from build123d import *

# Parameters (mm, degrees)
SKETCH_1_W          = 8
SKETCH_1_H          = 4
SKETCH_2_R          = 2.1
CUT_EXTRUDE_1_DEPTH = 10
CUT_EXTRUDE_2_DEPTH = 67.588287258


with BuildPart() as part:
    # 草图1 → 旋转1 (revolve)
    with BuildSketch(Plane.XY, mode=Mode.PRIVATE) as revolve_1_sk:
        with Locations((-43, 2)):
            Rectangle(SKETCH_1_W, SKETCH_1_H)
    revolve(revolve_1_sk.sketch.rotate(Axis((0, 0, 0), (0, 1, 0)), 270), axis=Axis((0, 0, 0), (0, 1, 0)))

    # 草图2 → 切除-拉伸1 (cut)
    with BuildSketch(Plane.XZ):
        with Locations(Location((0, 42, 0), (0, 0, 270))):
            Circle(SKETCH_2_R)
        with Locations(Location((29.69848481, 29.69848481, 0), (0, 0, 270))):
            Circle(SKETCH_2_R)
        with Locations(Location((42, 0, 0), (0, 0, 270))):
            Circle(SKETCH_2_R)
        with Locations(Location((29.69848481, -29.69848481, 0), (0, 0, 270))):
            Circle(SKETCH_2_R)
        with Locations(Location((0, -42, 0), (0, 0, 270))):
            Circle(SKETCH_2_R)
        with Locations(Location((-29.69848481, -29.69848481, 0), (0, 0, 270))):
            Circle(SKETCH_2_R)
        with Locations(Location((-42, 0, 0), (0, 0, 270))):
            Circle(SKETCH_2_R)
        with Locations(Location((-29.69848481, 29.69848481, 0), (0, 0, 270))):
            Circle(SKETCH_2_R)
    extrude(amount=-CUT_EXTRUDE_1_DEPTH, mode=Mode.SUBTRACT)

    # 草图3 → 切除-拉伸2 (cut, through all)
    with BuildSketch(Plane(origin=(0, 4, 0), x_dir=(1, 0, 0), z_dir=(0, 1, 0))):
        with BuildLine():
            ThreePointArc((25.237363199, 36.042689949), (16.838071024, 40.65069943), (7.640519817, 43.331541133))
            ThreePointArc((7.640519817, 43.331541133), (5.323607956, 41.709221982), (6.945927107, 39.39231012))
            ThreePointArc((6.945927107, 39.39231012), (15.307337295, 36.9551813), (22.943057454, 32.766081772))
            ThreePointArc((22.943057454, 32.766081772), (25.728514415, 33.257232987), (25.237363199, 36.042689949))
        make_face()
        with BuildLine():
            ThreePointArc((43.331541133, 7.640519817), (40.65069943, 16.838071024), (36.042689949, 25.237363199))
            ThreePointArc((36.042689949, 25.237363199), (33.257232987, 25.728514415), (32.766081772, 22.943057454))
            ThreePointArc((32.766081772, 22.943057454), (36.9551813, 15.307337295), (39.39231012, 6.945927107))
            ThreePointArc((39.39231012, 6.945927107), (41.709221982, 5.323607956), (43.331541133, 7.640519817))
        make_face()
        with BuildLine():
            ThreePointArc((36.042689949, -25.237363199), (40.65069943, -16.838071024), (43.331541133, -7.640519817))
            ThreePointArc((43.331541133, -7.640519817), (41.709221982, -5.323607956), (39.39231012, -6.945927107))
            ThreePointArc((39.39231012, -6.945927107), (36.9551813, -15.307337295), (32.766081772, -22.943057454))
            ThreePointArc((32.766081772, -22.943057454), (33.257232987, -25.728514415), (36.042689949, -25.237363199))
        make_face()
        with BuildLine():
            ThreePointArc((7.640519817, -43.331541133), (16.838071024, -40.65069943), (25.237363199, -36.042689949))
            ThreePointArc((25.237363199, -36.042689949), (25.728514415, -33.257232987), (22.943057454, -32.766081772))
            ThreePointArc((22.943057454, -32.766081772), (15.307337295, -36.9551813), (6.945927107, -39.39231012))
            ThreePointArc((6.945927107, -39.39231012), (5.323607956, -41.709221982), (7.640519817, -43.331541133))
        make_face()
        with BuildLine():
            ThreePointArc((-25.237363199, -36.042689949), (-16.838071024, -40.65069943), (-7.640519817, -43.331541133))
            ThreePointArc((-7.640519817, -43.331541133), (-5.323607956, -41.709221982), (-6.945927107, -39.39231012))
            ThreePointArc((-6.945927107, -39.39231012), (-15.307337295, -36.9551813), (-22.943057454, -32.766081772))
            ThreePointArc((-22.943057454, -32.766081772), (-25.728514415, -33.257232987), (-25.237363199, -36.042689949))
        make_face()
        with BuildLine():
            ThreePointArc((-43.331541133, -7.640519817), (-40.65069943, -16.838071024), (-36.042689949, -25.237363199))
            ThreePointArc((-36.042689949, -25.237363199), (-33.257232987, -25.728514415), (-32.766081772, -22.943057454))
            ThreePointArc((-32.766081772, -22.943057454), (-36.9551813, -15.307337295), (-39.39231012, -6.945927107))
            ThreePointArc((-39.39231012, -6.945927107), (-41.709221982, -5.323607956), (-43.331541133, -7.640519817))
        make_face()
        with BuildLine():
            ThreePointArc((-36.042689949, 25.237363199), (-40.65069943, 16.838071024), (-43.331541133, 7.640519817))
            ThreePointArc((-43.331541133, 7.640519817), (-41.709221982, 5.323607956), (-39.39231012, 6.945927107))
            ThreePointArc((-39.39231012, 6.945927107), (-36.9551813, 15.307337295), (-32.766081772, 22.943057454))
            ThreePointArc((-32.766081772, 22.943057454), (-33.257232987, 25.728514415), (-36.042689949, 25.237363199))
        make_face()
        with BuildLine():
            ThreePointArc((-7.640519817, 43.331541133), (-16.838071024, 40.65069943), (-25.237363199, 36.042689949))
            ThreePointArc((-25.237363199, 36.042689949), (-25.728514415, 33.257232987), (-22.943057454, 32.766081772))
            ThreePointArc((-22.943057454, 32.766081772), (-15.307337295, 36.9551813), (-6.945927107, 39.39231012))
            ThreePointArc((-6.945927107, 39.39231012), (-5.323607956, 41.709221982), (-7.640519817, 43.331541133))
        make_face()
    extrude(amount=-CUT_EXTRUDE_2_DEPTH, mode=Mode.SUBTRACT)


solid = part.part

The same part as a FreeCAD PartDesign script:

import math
import FreeCAD as App
import Part
import Sketcher


def add_polygon(sketch, points):
    """Adds a closed chain of lines whose ends are joined by coincident constraints."""
    first, n = sketch.GeometryCount, len(points)
    for a, b in zip(points, points[1:] + points[:1]):
        sketch.addGeometry(Part.LineSegment(App.Vector(*a, 0), App.Vector(*b, 0)), False)
    for i in range(n):
        sketch.addConstraint(Sketcher.Constraint("Coincident", first + i, 2, first + (i + 1) % n, 1))

doc = App.newDocument("Part")
body = doc.addObject("PartDesign::Body", "Body")

# Sketch on XY plane
sketch1 = body.newObject("Sketcher::SketchObject", "Sketch")
sketch1.AttachmentSupport = (doc.getObject("XY_Plane"), [""])
sketch1.MapMode = "FlatFace"
add_polygon(sketch1, [(-47, 4), (-47, 0), (-39, 0), (-39, 4)])  # lines 0-3
sketch1.addConstraint([
    Sketcher.Constraint("Vertical", 0),
    Sketcher.Constraint("Horizontal", 1),
    Sketcher.Constraint("Vertical", 2),
    Sketcher.Constraint("Horizontal", 3),
    Sketcher.Constraint("PointOnObject", 0, 2, -1),
    Sketcher.Constraint("DistanceX", 1, 1, 1, 2, 8.0),
    Sketcher.Constraint("DistanceY", 0, 2, 0, 1, 4.0),
    Sketcher.Constraint("DistanceX", 0, 2, -1, 1, 47.0),
])
revolution = body.newObject("PartDesign::Revolution", "Revolution")
revolution.Profile = sketch1
revolution.ReferenceAxis = (sketch1, ["V_Axis"])
revolution.Angle = 360

# Sketch on XZ plane
sketch2 = body.newObject("Sketcher::SketchObject", "Sketch001")
sketch2.AttachmentSupport = (doc.getObject("XZ_Plane"), [""])
sketch2.MapMode = "FlatFace"
sketch2.addGeometry([
    Part.Circle(App.Vector(0, 42, 0), App.Vector(0, 0, 1), 2.1),  # 0
    Part.Circle(App.Vector(29.698485, 29.698485, 0), App.Vector(0, 0, 1), 2.1),  # 1
    Part.Circle(App.Vector(42, 0, 0), App.Vector(0, 0, 1), 2.1),  # 2
    Part.Circle(App.Vector(29.698485, -29.698485, 0), App.Vector(0, 0, 1), 2.1),  # 3
    Part.Circle(App.Vector(0, -42, 0), App.Vector(0, 0, 1), 2.1),  # 4
    Part.Circle(App.Vector(-29.698485, -29.698485, 0), App.Vector(0, 0, 1), 2.1),  # 5
    Part.Circle(App.Vector(-42, 0, 0), App.Vector(0, 0, 1), 2.1),  # 6
    Part.Circle(App.Vector(-29.698485, 29.698485, 0), App.Vector(0, 0, 1), 2.1),  # 7
], False)
sketch2.addConstraint([
    Sketcher.Constraint("Equal", 0, 1),
    Sketcher.Constraint("Equal", 1, 2),
    Sketcher.Constraint("Equal", 2, 3),
    Sketcher.Constraint("Equal", 3, 4),
    Sketcher.Constraint("Equal", 4, 5),
    Sketcher.Constraint("Equal", 5, 6),
    Sketcher.Constraint("Equal", 6, 7),
    Sketcher.Constraint("Symmetric", 0, 3, 4, 3, -1, 1),
    Sketcher.Constraint("Symmetric", 1, 3, 5, 3, -1, 1),
    Sketcher.Constraint("Symmetric", 2, 3, 6, 3, -1, 1),
    Sketcher.Constraint("Symmetric", 3, 3, 7, 3, -1, 1),
    Sketcher.Constraint("Symmetric", 3, 3, 5, 3, -2),
    Sketcher.Constraint("PointOnObject", 0, 3, -2),
    Sketcher.Constraint("PointOnObject", 2, 3, -1),
    Sketcher.Constraint("Diameter", 0, 4.2),
    Sketcher.Constraint("DistanceY", -1, 1, 0, 3, 42.0),
    Sketcher.Constraint("DistanceX", -1, 1, 2, 3, 42.0),
    Sketcher.Constraint("DistanceY", 3, 3, 1, 3, 59.39697),
    Sketcher.Constraint("DistanceX", 5, 3, 3, 3, 59.39697),
])
pocket1 = body.newObject("PartDesign::Pocket", "Pocket")
pocket1.Profile = sketch2
pocket1.Length = 10

# Sketch on XZ plane
sketch3 = body.newObject("Sketcher::SketchObject", "Sketch002")
sketch3.AttachmentSupport = (doc.getObject("XZ_Plane"), [""])
sketch3.MapMode = "FlatFace"
sketch3.AttachmentOffset = App.Placement(App.Vector(0, 0, -4), App.Rotation())
sketch3.addGeometry([
    Part.ArcOfCircle(Part.Circle(App.Vector(0, 0, 0), App.Vector(0, 0, 1), 44), math.radians(-80), math.radians(-55)),  # 0
    Part.ArcOfCircle(Part.Circle(App.Vector(7.293223, -41.361926, 0), App.Vector(0, 0, 1), 2), math.radians(100), math.radians(280)),  # 1
    Part.ArcOfCircle(Part.Circle(App.Vector(0, 0, 0), App.Vector(0, 0, 1), 40), math.radians(-80), math.radians(-55)),  # 2
    Part.ArcOfCircle(Part.Circle(App.Vector(24.09021, -34.404386, 0), App.Vector(0, 0, 1), 2), math.radians(-55), math.radians(125)),  # 3
    Part.ArcOfCircle(Part.Circle(App.Vector(0, 0, 0), App.Vector(0, 0, 1), 44), math.radians(-35), math.radians(-10)),  # 4
    Part.ArcOfCircle(Part.Circle(App.Vector(34.404386, -24.09021, 0), App.Vector(0, 0, 1), 2), math.radians(145), math.radians(325)),  # 5
    Part.ArcOfCircle(Part.Circle(App.Vector(0, 0, 0), App.Vector(0, 0, 1), 40), math.radians(-35), math.radians(-10)),  # 6
    Part.ArcOfCircle(Part.Circle(App.Vector(41.361926, -7.293223, 0), App.Vector(0, 0, 1), 2), math.radians(-10), math.radians(170)),  # 7
    Part.ArcOfCircle(Part.Circle(App.Vector(0, 0, 0), App.Vector(0, 0, 1), 44), math.radians(10), math.radians(35)),  # 8
    Part.ArcOfCircle(Part.Circle(App.Vector(41.361926, 7.293223, 0), App.Vector(0, 0, 1), 2), math.radians(-170), math.radians(10)),  # 9
    Part.ArcOfCircle(Part.Circle(App.Vector(0, 0, 0), App.Vector(0, 0, 1), 40), math.radians(10), math.radians(35)),  # 10
    Part.ArcOfCircle(Part.Circle(App.Vector(34.404386, 24.09021, 0), App.Vector(0, 0, 1), 2), math.radians(35), math.radians(215)),  # 11
    Part.ArcOfCircle(Part.Circle(App.Vector(0, 0, 0), App.Vector(0, 0, 1), 44), math.radians(55), math.radians(80)),  # 12
    Part.ArcOfCircle(Part.Circle(App.Vector(24.09021, 34.404386, 0), App.Vector(0, 0, 1), 2), math.radians(-125), math.radians(55)),  # 13
    Part.ArcOfCircle(Part.Circle(App.Vector(0, 0, 0), App.Vector(0, 0, 1), 40), math.radians(55), math.radians(80)),  # 14
    Part.ArcOfCircle(Part.Circle(App.Vector(7.293223, 41.361926, 0), App.Vector(0, 0, 1), 2), math.radians(80), math.radians(260)),  # 15
    Part.ArcOfCircle(Part.Circle(App.Vector(0, 0, 0), App.Vector(0, 0, 1), 44), math.radians(100), math.radians(125)),  # 16
    Part.ArcOfCircle(Part.Circle(App.Vector(-7.293223, 41.361926, 0), App.Vector(0, 0, 1), 2), math.radians(-80), math.radians(100)),  # 17
    Part.ArcOfCircle(Part.Circle(App.Vector(0, 0, 0), App.Vector(0, 0, 1), 40), math.radians(100), math.radians(125)),  # 18
    Part.ArcOfCircle(Part.Circle(App.Vector(-24.09021, 34.404386, 0), App.Vector(0, 0, 1), 2), math.radians(125), math.radians(305)),  # 19
    Part.ArcOfCircle(Part.Circle(App.Vector(0, 0, 0), App.Vector(0, 0, 1), 44), math.radians(145), math.radians(170)),  # 20
    Part.ArcOfCircle(Part.Circle(App.Vector(-34.404386, 24.09021, 0), App.Vector(0, 0, 1), 2), math.radians(-35), math.radians(145)),  # 21
    Part.ArcOfCircle(Part.Circle(App.Vector(0, 0, 0), App.Vector(0, 0, 1), 40), math.radians(145), math.radians(170)),  # 22
    Part.ArcOfCircle(Part.Circle(App.Vector(-41.361926, 7.293223, 0), App.Vector(0, 0, 1), 2), math.radians(170), math.radians(350)),  # 23
    Part.ArcOfCircle(Part.Circle(App.Vector(0, 0, 0), App.Vector(0, 0, 1), 44), math.radians(-170), math.radians(-145)),  # 24
    Part.ArcOfCircle(Part.Circle(App.Vector(-41.361926, -7.293223, 0), App.Vector(0, 0, 1), 2), math.radians(10), math.radians(190)),  # 25
    Part.ArcOfCircle(Part.Circle(App.Vector(0, 0, 0), App.Vector(0, 0, 1), 40), math.radians(-170), math.radians(-145)),  # 26
    Part.ArcOfCircle(Part.Circle(App.Vector(-34.404386, -24.09021, 0), App.Vector(0, 0, 1), 2), math.radians(-145), math.radians(35)),  # 27
    Part.ArcOfCircle(Part.Circle(App.Vector(0, 0, 0), App.Vector(0, 0, 1), 44), math.radians(-125), math.radians(-100)),  # 28
    Part.ArcOfCircle(Part.Circle(App.Vector(-24.09021, -34.404386, 0), App.Vector(0, 0, 1), 2), math.radians(55), math.radians(235)),  # 29
    Part.ArcOfCircle(Part.Circle(App.Vector(0, 0, 0), App.Vector(0, 0, 1), 40), math.radians(-125), math.radians(-100)),  # 30
    Part.ArcOfCircle(Part.Circle(App.Vector(-7.293223, -41.361926, 0), App.Vector(0, 0, 1), 2), math.radians(-100), math.radians(80)),  # 31
], False)
sketch3.addConstraint([
    Sketcher.Constraint("Tangent", 0, 1, 1, 2),
    Sketcher.Constraint("Tangent", 1, 1, 2, 1),
    Sketcher.Constraint("Tangent", 2, 2, 3, 2),
    Sketcher.Constraint("Tangent", 3, 1, 0, 2),
    Sketcher.Constraint("Tangent", 4, 1, 5, 2),
    Sketcher.Constraint("Tangent", 5, 1, 6, 1),
    Sketcher.Constraint("Tangent", 6, 2, 7, 2),
    Sketcher.Constraint("Tangent", 7, 1, 4, 2),
    Sketcher.Constraint("Tangent", 8, 1, 9, 2),
    Sketcher.Constraint("Tangent", 9, 1, 10, 1),
    Sketcher.Constraint("Tangent", 10, 2, 11, 2),
    Sketcher.Constraint("Tangent", 11, 1, 8, 2),
    Sketcher.Constraint("Tangent", 12, 1, 13, 2),
    Sketcher.Constraint("Tangent", 13, 1, 14, 1),
    Sketcher.Constraint("Tangent", 14, 2, 15, 2),
    Sketcher.Constraint("Tangent", 15, 1, 12, 2),
    Sketcher.Constraint("Tangent", 16, 1, 17, 2),
    Sketcher.Constraint("Tangent", 17, 1, 18, 1),
    Sketcher.Constraint("Tangent", 18, 2, 19, 2),
    Sketcher.Constraint("Tangent", 19, 1, 16, 2),
    Sketcher.Constraint("Tangent", 20, 1, 21, 2),
    Sketcher.Constraint("Tangent", 21, 1, 22, 1),
    Sketcher.Constraint("Tangent", 22, 2, 23, 2),
    Sketcher.Constraint("Tangent", 23, 1, 20, 2),
    Sketcher.Constraint("Tangent", 24, 1, 25, 2),
    Sketcher.Constraint("Tangent", 25, 1, 26, 1),
    Sketcher.Constraint("Tangent", 26, 2, 27, 2),
    Sketcher.Constraint("Tangent", 27, 1, 24, 2),
    Sketcher.Constraint("Tangent", 28, 1, 29, 2),
    Sketcher.Constraint("Tangent", 29, 1, 30, 1),
    Sketcher.Constraint("Tangent", 30, 2, 31, 2),
    Sketcher.Constraint("Tangent", 31, 1, 28, 2),
    Sketcher.Constraint("Coincident", 0, 3, -1, 1),
    Sketcher.Constraint("Coincident", 2, 3, -1, 1),
    Sketcher.Constraint("Coincident", 4, 3, -1, 1),
    Sketcher.Constraint("Coincident", 6, 3, -1, 1),
    Sketcher.Constraint("Coincident", 8, 3, -1, 1),
    Sketcher.Constraint("Coincident", 10, 3, -1, 1),
    Sketcher.Constraint("Coincident", 12, 3, -1, 1),
    Sketcher.Constraint("Coincident", 14, 3, -1, 1),
    Sketcher.Constraint("Coincident", 16, 3, -1, 1),
    Sketcher.Constraint("Coincident", 18, 3, -1, 1),
    Sketcher.Constraint("Coincident", 20, 3, -1, 1),
    Sketcher.Constraint("Coincident", 22, 3, -1, 1),
    Sketcher.Constraint("Coincident", 24, 3, -1, 1),
    Sketcher.Constraint("Coincident", 26, 3, -1, 1),
    Sketcher.Constraint("Coincident", 28, 3, -1, 1),
    Sketcher.Constraint("Coincident", 30, 3, -1, 1),
    Sketcher.Constraint("Equal", 0, 4),
    Sketcher.Constraint("Equal", 3, 5),
    Sketcher.Constraint("Equal", 4, 8),
    Sketcher.Constraint("Equal", 7, 9),
    Sketcher.Constraint("Equal", 8, 12),
    Sketcher.Constraint("Equal", 11, 13),
    Sketcher.Constraint("Equal", 12, 16),
    Sketcher.Constraint("Equal", 15, 17),
    Sketcher.Constraint("Equal", 16, 20),
    Sketcher.Constraint("Equal", 19, 21),
    Sketcher.Constraint("Equal", 20, 24),
    Sketcher.Constraint("Equal", 23, 25),
    Sketcher.Constraint("Equal", 24, 28),
    Sketcher.Constraint("Equal", 27, 29),
    Sketcher.Constraint("Horizontal", 15, 3, 17, 3),
    Sketcher.Constraint("Horizontal", 13, 3, 19, 3),
    Sketcher.Constraint("Horizontal", 11, 3, 21, 3),
    Sketcher.Constraint("Horizontal", 9, 3, 23, 3),
    Sketcher.Constraint("Horizontal", 7, 3, 25, 3),
    Sketcher.Constraint("Horizontal", 5, 3, 27, 3),
    Sketcher.Constraint("Horizontal", 3, 3, 29, 3),
    Sketcher.Constraint("Horizontal", 1, 3, 31, 3),
    Sketcher.Constraint("Vertical", 7, 3, 9, 3),
    Sketcher.Constraint("Vertical", 5, 3, 11, 3),
    Sketcher.Constraint("Vertical", 3, 3, 13, 3),
    Sketcher.Constraint("Vertical", 1, 3, 15, 3),
    Sketcher.Constraint("Radius", 0, 44.0),
    Sketcher.Constraint("Radius", 1, 2.0),
    Sketcher.Constraint("DistanceX", -1, 1, 3, 3, 24.09021),
    Sketcher.Constraint("DistanceY", 5, 3, -1, 1, 24.09021),
    Sketcher.Constraint("DistanceX", -1, 1, 0, 1, 7.64052),
    Sketcher.Constraint("DistanceX", -1, 1, 6, 2, 39.39231),
])
pocket2 = body.newObject("PartDesign::Pocket", "Pocket001")
pocket2.Profile = sketch3
pocket2.Type = "ThroughAll"
pocket2.Reversed = True

doc.recompute()
